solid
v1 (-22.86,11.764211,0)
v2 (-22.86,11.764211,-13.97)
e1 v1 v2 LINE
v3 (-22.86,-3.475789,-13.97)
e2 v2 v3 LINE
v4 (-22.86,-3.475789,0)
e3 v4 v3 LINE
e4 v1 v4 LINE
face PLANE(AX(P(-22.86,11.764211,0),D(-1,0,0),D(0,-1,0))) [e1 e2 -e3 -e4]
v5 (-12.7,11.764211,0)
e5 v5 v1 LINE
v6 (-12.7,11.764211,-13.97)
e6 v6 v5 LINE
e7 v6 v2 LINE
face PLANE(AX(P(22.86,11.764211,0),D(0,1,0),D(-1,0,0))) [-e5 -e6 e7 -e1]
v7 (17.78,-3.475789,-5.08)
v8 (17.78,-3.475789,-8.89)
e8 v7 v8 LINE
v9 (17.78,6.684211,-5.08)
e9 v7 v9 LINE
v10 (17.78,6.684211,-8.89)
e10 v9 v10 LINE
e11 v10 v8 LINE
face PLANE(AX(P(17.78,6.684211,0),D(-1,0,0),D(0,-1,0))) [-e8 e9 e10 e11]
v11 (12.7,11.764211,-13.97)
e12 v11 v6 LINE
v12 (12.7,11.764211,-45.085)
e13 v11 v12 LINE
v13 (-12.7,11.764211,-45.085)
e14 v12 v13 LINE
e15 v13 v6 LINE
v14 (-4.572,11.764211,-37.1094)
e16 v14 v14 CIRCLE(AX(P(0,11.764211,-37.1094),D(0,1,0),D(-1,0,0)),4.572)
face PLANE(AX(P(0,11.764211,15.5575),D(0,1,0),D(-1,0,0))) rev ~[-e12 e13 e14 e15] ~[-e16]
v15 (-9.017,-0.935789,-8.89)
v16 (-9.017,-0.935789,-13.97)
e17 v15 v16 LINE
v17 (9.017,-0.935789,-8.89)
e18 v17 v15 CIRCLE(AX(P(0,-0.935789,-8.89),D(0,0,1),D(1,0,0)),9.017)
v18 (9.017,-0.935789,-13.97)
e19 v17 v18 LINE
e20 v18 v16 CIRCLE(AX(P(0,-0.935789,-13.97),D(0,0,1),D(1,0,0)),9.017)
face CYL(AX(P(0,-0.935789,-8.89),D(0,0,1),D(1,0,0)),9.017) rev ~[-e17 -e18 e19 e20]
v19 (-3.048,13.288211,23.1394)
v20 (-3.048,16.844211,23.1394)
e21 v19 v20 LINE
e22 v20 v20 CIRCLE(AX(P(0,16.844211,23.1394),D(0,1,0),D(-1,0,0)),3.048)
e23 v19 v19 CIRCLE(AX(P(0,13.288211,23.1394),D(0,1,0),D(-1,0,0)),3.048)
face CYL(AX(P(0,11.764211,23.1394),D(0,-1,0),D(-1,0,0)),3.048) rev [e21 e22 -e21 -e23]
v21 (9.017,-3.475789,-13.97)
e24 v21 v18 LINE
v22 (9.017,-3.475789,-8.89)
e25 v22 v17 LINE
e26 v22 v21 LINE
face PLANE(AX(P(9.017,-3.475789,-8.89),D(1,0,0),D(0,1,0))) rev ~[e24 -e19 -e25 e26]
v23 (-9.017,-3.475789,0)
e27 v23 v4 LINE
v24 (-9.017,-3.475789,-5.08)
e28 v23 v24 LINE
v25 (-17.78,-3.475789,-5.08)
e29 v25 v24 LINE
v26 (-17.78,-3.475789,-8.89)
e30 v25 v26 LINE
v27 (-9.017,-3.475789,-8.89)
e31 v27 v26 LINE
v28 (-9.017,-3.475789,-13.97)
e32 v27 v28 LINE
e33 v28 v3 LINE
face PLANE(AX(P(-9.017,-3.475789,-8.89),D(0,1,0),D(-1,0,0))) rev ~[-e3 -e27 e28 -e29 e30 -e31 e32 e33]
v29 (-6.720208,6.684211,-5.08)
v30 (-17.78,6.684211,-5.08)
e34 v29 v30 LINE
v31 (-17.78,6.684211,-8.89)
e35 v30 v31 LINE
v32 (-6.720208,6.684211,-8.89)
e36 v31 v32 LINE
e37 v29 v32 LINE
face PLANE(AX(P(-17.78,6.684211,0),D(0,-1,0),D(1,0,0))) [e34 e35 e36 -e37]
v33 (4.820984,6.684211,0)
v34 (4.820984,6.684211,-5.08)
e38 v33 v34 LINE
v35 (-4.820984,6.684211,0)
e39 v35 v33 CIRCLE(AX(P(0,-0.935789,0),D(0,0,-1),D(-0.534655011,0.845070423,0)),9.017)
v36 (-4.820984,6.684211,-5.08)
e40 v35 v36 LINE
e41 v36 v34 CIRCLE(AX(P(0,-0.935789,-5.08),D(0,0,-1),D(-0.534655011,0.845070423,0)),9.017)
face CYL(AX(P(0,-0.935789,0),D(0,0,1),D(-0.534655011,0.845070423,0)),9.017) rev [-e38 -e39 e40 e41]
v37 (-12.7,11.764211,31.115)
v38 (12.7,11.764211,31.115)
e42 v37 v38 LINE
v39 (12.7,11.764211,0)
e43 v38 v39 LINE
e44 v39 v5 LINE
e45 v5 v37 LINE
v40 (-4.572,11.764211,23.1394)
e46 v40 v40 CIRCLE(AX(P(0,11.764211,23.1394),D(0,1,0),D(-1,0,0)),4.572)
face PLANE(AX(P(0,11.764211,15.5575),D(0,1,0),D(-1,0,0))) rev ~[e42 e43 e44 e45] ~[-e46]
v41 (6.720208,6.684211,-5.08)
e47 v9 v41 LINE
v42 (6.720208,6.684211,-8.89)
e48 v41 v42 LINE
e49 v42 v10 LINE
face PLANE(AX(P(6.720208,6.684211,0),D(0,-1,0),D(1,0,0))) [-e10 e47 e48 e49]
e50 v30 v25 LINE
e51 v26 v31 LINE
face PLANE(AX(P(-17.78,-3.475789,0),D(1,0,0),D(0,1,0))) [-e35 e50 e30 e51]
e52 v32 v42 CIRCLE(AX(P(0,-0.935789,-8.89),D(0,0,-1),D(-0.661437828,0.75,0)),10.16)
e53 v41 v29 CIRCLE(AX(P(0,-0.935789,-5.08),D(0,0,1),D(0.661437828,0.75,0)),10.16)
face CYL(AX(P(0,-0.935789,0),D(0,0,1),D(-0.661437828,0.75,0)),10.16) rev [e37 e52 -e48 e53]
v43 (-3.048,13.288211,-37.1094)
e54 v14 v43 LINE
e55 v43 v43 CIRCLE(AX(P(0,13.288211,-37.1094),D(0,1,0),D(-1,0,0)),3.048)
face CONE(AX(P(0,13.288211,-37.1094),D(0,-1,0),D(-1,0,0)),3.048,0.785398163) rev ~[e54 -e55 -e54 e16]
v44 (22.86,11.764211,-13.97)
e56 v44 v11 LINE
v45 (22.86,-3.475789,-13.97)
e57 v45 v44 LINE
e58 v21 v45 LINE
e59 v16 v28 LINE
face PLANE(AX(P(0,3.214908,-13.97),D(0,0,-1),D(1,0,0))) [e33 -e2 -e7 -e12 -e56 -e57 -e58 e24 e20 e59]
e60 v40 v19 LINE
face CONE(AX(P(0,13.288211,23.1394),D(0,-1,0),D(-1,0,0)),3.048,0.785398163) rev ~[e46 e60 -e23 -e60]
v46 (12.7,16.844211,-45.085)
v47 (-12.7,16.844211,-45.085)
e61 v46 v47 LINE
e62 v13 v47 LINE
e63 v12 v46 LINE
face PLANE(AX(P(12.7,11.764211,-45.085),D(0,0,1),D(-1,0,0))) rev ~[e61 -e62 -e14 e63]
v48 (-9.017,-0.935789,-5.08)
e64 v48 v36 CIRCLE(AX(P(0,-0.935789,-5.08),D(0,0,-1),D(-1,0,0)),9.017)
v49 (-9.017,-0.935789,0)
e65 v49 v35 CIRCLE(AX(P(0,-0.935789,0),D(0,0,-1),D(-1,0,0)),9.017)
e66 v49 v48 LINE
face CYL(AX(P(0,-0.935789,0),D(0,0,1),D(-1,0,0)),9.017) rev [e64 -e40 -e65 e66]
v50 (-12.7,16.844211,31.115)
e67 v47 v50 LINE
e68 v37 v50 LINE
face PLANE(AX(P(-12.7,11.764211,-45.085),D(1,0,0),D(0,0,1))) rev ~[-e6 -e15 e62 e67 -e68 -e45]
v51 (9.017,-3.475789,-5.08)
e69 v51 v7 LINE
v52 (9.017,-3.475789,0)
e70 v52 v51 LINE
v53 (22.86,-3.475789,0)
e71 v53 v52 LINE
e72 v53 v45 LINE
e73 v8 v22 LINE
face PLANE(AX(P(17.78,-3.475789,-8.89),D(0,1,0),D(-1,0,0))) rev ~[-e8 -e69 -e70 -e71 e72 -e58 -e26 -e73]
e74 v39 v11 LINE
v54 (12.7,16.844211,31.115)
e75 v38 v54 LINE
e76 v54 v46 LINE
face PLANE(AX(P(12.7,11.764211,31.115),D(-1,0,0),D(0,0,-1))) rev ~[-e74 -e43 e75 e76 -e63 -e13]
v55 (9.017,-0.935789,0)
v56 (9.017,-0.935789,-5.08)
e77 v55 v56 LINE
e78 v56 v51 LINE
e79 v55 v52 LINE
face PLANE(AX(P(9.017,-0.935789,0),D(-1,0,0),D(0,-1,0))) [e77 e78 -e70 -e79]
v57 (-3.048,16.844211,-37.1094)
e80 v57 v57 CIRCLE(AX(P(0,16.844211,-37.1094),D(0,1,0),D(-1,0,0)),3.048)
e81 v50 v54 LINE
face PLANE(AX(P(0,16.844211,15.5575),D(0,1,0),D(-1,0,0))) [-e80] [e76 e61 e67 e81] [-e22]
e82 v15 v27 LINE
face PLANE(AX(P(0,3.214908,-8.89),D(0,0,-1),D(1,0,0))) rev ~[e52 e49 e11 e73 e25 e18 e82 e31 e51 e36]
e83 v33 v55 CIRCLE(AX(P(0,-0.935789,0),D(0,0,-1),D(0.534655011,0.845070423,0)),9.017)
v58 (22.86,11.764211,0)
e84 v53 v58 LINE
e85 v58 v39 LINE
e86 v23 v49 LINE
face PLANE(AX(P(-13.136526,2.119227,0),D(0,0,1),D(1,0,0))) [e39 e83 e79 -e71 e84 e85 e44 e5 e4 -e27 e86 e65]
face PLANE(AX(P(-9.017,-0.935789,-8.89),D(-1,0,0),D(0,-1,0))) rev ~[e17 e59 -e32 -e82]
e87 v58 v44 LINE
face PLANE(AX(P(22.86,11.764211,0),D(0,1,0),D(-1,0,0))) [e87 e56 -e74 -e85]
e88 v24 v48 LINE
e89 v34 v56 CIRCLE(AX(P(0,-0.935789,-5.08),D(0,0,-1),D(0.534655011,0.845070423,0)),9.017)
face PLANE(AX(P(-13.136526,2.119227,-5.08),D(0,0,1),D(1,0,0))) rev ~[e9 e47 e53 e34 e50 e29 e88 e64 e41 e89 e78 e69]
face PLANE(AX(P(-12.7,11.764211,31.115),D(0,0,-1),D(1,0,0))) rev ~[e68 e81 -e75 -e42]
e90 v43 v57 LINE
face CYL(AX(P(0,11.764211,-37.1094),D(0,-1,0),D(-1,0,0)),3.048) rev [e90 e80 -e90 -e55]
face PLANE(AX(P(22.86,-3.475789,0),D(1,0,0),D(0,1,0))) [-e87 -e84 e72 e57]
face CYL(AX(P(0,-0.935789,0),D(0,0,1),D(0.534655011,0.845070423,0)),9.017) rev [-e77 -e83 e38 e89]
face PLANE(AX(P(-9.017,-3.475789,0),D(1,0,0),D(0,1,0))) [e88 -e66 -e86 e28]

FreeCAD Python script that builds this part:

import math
import FreeCAD as App
import Part
import Sketcher
Q = App.Units.Quantity


def edges_at(feature, points):
    """Names of the edges that pass closest to the given points."""
    edges = feature.Shape.Edges
    near = lambda p: min(range(len(edges)), key=lambda i: edges[i].distToShape(Part.Vertex(*p))[0])
    return sorted({f"Edge{near(p) + 1}" for p in points})

doc = App.newDocument("Part")
params = doc.addObject("Spreadsheet::Sheet", "Params")
for row, (alias, value) in enumerate([
    ("sketch1_radius", "0.4 in"),
    ("sketch1_height", "0.4 in"),
    ("sketch1_height2", "0.1 in"),
    ("sketch1_radius2", "0.355 in"),
    ("pad1_length", "0.2 in"),
    ("sketch2_radius", "0.4 in"),
    ("sketch2_width", "0.2 in"),
    ("sketch2_width2", "1.8 in"),
    ("sketch2_height", "0.4 in"),
    ("sketch2_height2", "0.6 in"),
    ("pad2_length", "0.55 in"),
    ("sketch3_radius", "0.4 in"),
    ("sketch3_height", "0.4 in"),
    ("sketch3_height2", "0.1 in"),
    ("sketch3_radius2", "0.355 in"),
    ("pad3_length", "0.2 in"),
    ("sketch4_diameter", "0.24 in"),
    ("sketch4_width", "1 in"),
    ("sketch4_height", "3 in"),
    ("pad4_length", "0.2 in"),
    ("chamfer_size", "0.06 in"),
], start=1):
    params.set(f"A{row}", alias)
    params.set(f"B{row}", "=" + value)
    params.setAlias(f"B{row}", alias)

body = doc.addObject("PartDesign::Body", "Body")

# Sketch on XY plane
sketch1 = body.newObject("Sketcher::SketchObject", "Sketch")
sketch1.AttachmentSupport = (doc.getObject("XY_Plane"), [""])
sketch1.MapMode = "FlatFace"
sketch1.addGeometry([
    Part.LineSegment(App.Vector(-17.78, 6.684211, 0), App.Vector(-17.78, -3.475789, 0)),  # 0
    Part.LineSegment(App.Vector(-17.78, -3.475789, 0), App.Vector(-9.017, -3.475789, 0)),  # 1
    Part.LineSegment(App.Vector(-9.017, -3.475789, 0), App.Vector(-9.017, -0.935789, 0)),  # 2
    Part.ArcOfCircle(Part.Circle(App.Vector(0, -0.935789, 0), App.Vector(0, 0, 1), 9.017), math.radians(122.320518), math.radians(180)),  # 3
    Part.ArcOfCircle(Part.Circle(App.Vector(0, -0.935789, 0), App.Vector(0, 0, 1), 9.017), math.radians(57.679482), math.radians(122.320518)),  # 4
    Part.ArcOfCircle(Part.Circle(App.Vector(0, -0.935789, 0), App.Vector(0, 0, 1), 9.017), math.radians(0), math.radians(57.679482)),  # 5
    Part.LineSegment(App.Vector(9.017, -0.935789, 0), App.Vector(9.017, -3.475789, 0)),  # 6
    Part.LineSegment(App.Vector(9.017, -3.475789, 0), App.Vector(17.78, -3.475789, 0)),  # 7
    Part.LineSegment(App.Vector(17.78, -3.475789, 0), App.Vector(17.78, 6.684211, 0)),  # 8
    Part.LineSegment(App.Vector(17.78, 6.684211, 0), App.Vector(6.720208, 6.684211, 0)),  # 9
    Part.ArcOfCircle(Part.Circle(App.Vector(0, -0.935789, 0), App.Vector(0, 0, 1), 10.16), math.radians(48.590378), math.radians(131.409622)),  # 10
    Part.LineSegment(App.Vector(-6.720208, 6.684211, 0), App.Vector(-17.78, 6.684211, 0)),  # 11
], False)
sketch1.addConstraint([
    Sketcher.Constraint("Coincident", 0, 2, 1, 1),
    Sketcher.Constraint("Coincident", 1, 2, 2, 1),
    Sketcher.Constraint("Tangent", 2, 2, 3, 2),
    Sketcher.Constraint("Tangent", 3, 1, 4, 2),
    Sketcher.Constraint("Tangent", 4, 1, 5, 2),
    Sketcher.Constraint("Tangent", 5, 1, 6, 1),
    Sketcher.Constraint("Coincident", 6, 2, 7, 1),
    Sketcher.Constraint("Coincident", 7, 2, 8, 1),
    Sketcher.Constraint("Coincident", 8, 2, 9, 1),
    Sketcher.Constraint("Coincident", 9, 2, 10, 1),
    Sketcher.Constraint("Coincident", 10, 2, 11, 1),
    Sketcher.Constraint("Coincident", 11, 2, 0, 1),
    Sketcher.Constraint("Vertical", 0),
    Sketcher.Constraint("Horizontal", 1),
    Sketcher.Constraint("Vertical", 2),
    Sketcher.Constraint("Vertical", 6),
    Sketcher.Constraint("Horizontal", 7),
    Sketcher.Constraint("Vertical", 8),
    Sketcher.Constraint("Horizontal", 9),
    Sketcher.Constraint("Horizontal", 11),
    Sketcher.Constraint("Coincident", 5, 3, 3, 3),
    Sketcher.Constraint("Coincident", 10, 3, 3, 3),
    Sketcher.Constraint("Symmetric", 3, 1, 4, 1, -2),
    Sketcher.Constraint("Symmetric", 0, 2, 7, 2, -2),
    Sketcher.Constraint("Horizontal", 4, 1, 8, 2),
    Sketcher.Constraint("Horizontal", 9, 2, 10, 2),
    Sketcher.Constraint("Radius", 10, Q("0.4 in")),
    Sketcher.Constraint("DistanceY", 0, 2, 0, 1, Q("0.4 in")),
    Sketcher.Constraint("DistanceY", 2, 1, 2, 2, Q("0.1 in")),
    Sketcher.Constraint("Radius", 3, Q("0.355 in")),
    Sketcher.Constraint("DistanceX", 0, 2, -1, 1, Q("0.7 in")),
    Sketcher.Constraint("DistanceY", 3, 3, -1, 1, Q("0.935789 mm")),
])
sketch1.setExpression("Constraints[26]", "Params.sketch1_radius")
sketch1.setExpression("Constraints[27]", "Params.sketch1_height")
sketch1.setExpression("Constraints[28]", "Params.sketch1_height2")
sketch1.setExpression("Constraints[29]", "Params.sketch1_radius2")
pad1 = body.newObject("PartDesign::Pad", "Pad")
pad1.Profile = sketch1
pad1.setExpression("Length", "Params.pad1_length")
pad1.Reversed = True

# Sketch on XY plane
sketch2 = body.newObject("Sketcher::SketchObject", "Sketch001")
sketch2.AttachmentSupport = (doc.getObject("XY_Plane"), [""])
sketch2.MapMode = "FlatFace"
sketch2.addGeometry([
    Part.ArcOfCircle(Part.Circle(App.Vector(0, -0.935789, 0), App.Vector(0, 0, 1), 10.16), math.radians(48.590378), math.radians(131.409622)),  # 0
    Part.LineSegment(App.Vector(6.720208, 6.684211, 0), App.Vector(17.78, 6.684211, 0)),  # 1
    Part.LineSegment(App.Vector(17.78, 6.684211, 0), App.Vector(17.78, -3.475789, 0)),  # 2
    Part.LineSegment(App.Vector(17.78, -3.475789, 0), App.Vector(22.86, -3.475789, 0)),  # 3
    Part.LineSegment(App.Vector(22.86, -3.475789, 0), App.Vector(22.86, 11.764211, 0)),  # 4
    Part.LineSegment(App.Vector(22.86, 11.764211, 0), App.Vector(-22.86, 11.764211, 0)),  # 5
    Part.LineSegment(App.Vector(-22.86, 11.764211, 0), App.Vector(-22.86, -3.475789, 0)),  # 6
    Part.LineSegment(App.Vector(-22.86, -3.475789, 0), App.Vector(-17.78, -3.475789, 0)),  # 7
    Part.LineSegment(App.Vector(-17.78, -3.475789, 0), App.Vector(-17.78, 6.684211, 0)),  # 8
    Part.LineSegment(App.Vector(-17.78, 6.684211, 0), App.Vector(-6.720208, 6.684211, 0)),  # 9
], False)
sketch2.addConstraint([
    Sketcher.Constraint("Coincident", 0, 1, 1, 1),
    Sketcher.Constraint("Coincident", 1, 2, 2, 1),
    Sketcher.Constraint("Coincident", 2, 2, 3, 1),
    Sketcher.Constraint("Coincident", 3, 2, 4, 1),
    Sketcher.Constraint("Coincident", 4, 2, 5, 1),
    Sketcher.Constraint("Coincident", 5, 2, 6, 1),
    Sketcher.Constraint("Coincident", 6, 2, 7, 1),
    Sketcher.Constraint("Coincident", 7, 2, 8, 1),
    Sketcher.Constraint("Coincident", 8, 2, 9, 1),
    Sketcher.Constraint("Coincident", 9, 2, 0, 2),
    Sketcher.Constraint("Horizontal", 1),
    Sketcher.Constraint("Vertical", 2),
    Sketcher.Constraint("Horizontal", 3),
    Sketcher.Constraint("Vertical", 4),
    Sketcher.Constraint("Horizontal", 5),
    Sketcher.Constraint("Vertical", 6),
    Sketcher.Constraint("Horizontal", 7),
    Sketcher.Constraint("Vertical", 8),
    Sketcher.Constraint("Horizontal", 9),
    Sketcher.Constraint("Symmetric", 3, 2, 6, 2, -2),
    Sketcher.Constraint("Symmetric", 1, 2, 8, 2, -2),
    Sketcher.Constraint("PointOnObject", 0, 3, -2),
    Sketcher.Constraint("Radius", 0, Q("0.4 in")),
    Sketcher.Constraint("DistanceX", 3, 1, 3, 2, Q("0.2 in")),
    Sketcher.Constraint("DistanceX", 5, 2, 5, 1, Q("1.8 in")),
    Sketcher.Constraint("DistanceY", 2, 2, 2, 1, Q("0.4 in")),
    Sketcher.Constraint("DistanceY", 4, 1, 4, 2, Q("0.6 in")),
    Sketcher.Constraint("DistanceY", 0, 3, 0, 1, Q("0.3 in")),
    Sketcher.Constraint("DistanceY", 0, 3, -1, 1, Q("0.935789 mm")),
])
sketch2.setExpression("Constraints[22]", "Params.sketch2_radius")
sketch2.setExpression("Constraints[23]", "Params.sketch2_width")
sketch2.setExpression("Constraints[24]", "Params.sketch2_width2")
sketch2.setExpression("Constraints[25]", "Params.sketch2_height")
sketch2.setExpression("Constraints[26]", "Params.sketch2_height2")
pad2 = body.newObject("PartDesign::Pad", "Pad001")
pad2.Profile = sketch2
pad2.setExpression("Length", "Params.pad2_length")
pad2.Reversed = True

# Sketch on XY plane
sketch3 = body.newObject("Sketcher::SketchObject", "Sketch002")
sketch3.AttachmentSupport = (doc.getObject("XY_Plane"), [""])
sketch3.MapMode = "FlatFace"
sketch3.AttachmentOffset = App.Placement(App.Vector(0, 0, -0.35 * 25.4), App.Rotation())
sketch3.addGeometry([
    Part.LineSegment(App.Vector(-17.78, -3.475789, 0), App.Vector(-17.78, 6.684211, 0)),  # 0
    Part.LineSegment(App.Vector(-17.78, 6.684211, 0), App.Vector(-6.720208, 6.684211, 0)),  # 1
    Part.ArcOfCircle(Part.Circle(App.Vector(0, -0.935789, 0), App.Vector(0, 0, 1), 10.16), math.radians(48.590378), math.radians(131.409622)),  # 2
    Part.LineSegment(App.Vector(6.720208, 6.684211, 0), App.Vector(17.78, 6.684211, 0)),  # 3
    Part.LineSegment(App.Vector(17.78, 6.684211, 0), App.Vector(17.78, -3.475789, 0)),  # 4
    Part.LineSegment(App.Vector(17.78, -3.475789, 0), App.Vector(9.017, -3.475789, 0)),  # 5
    Part.LineSegment(App.Vector(9.017, -3.475789, 0), App.Vector(9.017, -0.935789, 0)),  # 6
    Part.ArcOfCircle(Part.Circle(App.Vector(0, -0.935789, 0), App.Vector(0, 0, 1), 9.017), math.radians(0), math.radians(180)),  # 7
    Part.LineSegment(App.Vector(-9.017, -0.935789, 0), App.Vector(-9.017, -3.475789, 0)),  # 8
    Part.LineSegment(App.Vector(-9.017, -3.475789, 0), App.Vector(-17.78, -3.475789, 0)),  # 9
], False)
sketch3.addConstraint([
    Sketcher.Constraint("Coincident", 0, 2, 1, 1),
    Sketcher.Constraint("Coincident", 1, 2, 2, 2),
    Sketcher.Constraint("Coincident", 2, 1, 3, 1),
    Sketcher.Constraint("Coincident", 3, 2, 4, 1),
    Sketcher.Constraint("Coincident", 4, 2, 5, 1),
    Sketcher.Constraint("Coincident", 5, 2, 6, 1),
    Sketcher.Constraint("Tangent", 6, 2, 7, 1),
    Sketcher.Constraint("Tangent", 7, 2, 8, 1),
    Sketcher.Constraint("Coincident", 8, 2, 9, 1),
    Sketcher.Constraint("Coincident", 9, 2, 0, 1),
    Sketcher.Constraint("Vertical", 0),
    Sketcher.Constraint("Horizontal", 1),
    Sketcher.Constraint("Horizontal", 3),
    Sketcher.Constraint("Vertical", 4),
    Sketcher.Constraint("Horizontal", 5),
    Sketcher.Constraint("Vertical", 6),
    Sketcher.Constraint("Vertical", 8),
    Sketcher.Constraint("Horizontal", 9),
    Sketcher.Constraint("Coincident", 7, 3, 2, 3),
    Sketcher.Constraint("Symmetric", 1, 2, 2, 1, -2),
    Sketcher.Constraint("Symmetric", 4, 2, 9, 2, -2),
    Sketcher.Constraint("Radius", 2, Q("0.4 in")),
    Sketcher.Constraint("DistanceY", 0, 1, 0, 2, Q("0.4 in")),
    Sketcher.Constraint("DistanceY", 6, 1, 6, 2, Q("0.1 in")),
    Sketcher.Constraint("Radius", 7, Q("0.355 in")),
    Sketcher.Constraint("DistanceX", 0, 2, -1, 1, Q("0.7 in")),
    Sketcher.Constraint("DistanceY", 2, 3, -1, 1, Q("0.935789 mm")),
])
sketch3.setExpression("Constraints[21]", "Params.sketch3_radius")
sketch3.setExpression("Constraints[22]", "Params.sketch3_height")
sketch3.setExpression("Constraints[23]", "Params.sketch3_height2")
sketch3.setExpression("Constraints[24]", "Params.sketch3_radius2")
pad3 = body.newObject("PartDesign::Pad", "Pad002")
pad3.Profile = sketch3
pad3.setExpression("Length", "Params.pad3_length")
pad3.Reversed = True

# Sketch on XZ plane
sketch4 = body.newObject("Sketcher::SketchObject", "Sketch003")
sketch4.AttachmentSupport = (doc.getObject("XZ_Plane"), [""])
sketch4.MapMode = "FlatFace"
sketch4.AttachmentOffset = App.Placement(App.Vector(0, 0, -11.764211), App.Rotation())
sketch4.addGeometry([
    Part.LineSegment(App.Vector(-12.7, 31.115, 0), App.Vector(12.7, 31.115, 0)),  # 0
    Part.LineSegment(App.Vector(12.7, 31.115, 0), App.Vector(12.7, -45.085, 0)),  # 1
    Part.LineSegment(App.Vector(12.7, -45.085, 0), App.Vector(-12.7, -45.085, 0)),  # 2
    Part.LineSegment(App.Vector(-12.7, -45.085, 0), App.Vector(-12.7, 31.115, 0)),  # 3
    Part.Circle(App.Vector(0, 23.1394, 0), App.Vector(0, 0, 1), 3.048),  # 4
    Part.Circle(App.Vector(0, -37.1094, 0), App.Vector(0, 0, 1), 3.048),  # 5
], False)
sketch4.addConstraint([
    Sketcher.Constraint("Coincident", 0, 2, 1, 1),
    Sketcher.Constraint("Coincident", 1, 2, 2, 1),
    Sketcher.Constraint("Coincident", 2, 2, 3, 1),
    Sketcher.Constraint("Coincident", 3, 2, 0, 1),
    Sketcher.Constraint("Horizontal", 0),
    Sketcher.Constraint("Vertical", 1),
    Sketcher.Constraint("Horizontal", 2),
    Sketcher.Constraint("Vertical", 3),
    Sketcher.Constraint("Equal", 4, 5),
    Sketcher.Constraint("PointOnObject", 4, 3, -2),
    Sketcher.Constraint("PointOnObject", 5, 3, -2),
    Sketcher.Constraint("Diameter", 4, Q("0.24 in")),
    Sketcher.Constraint("DistanceX", 0, 1, 0, 2, Q("1 in")),
    Sketcher.Constraint("DistanceY", 1, 2, 1, 1, Q("3 in")),
    Sketcher.Constraint("DistanceX", -1, 1, 0, 2, Q("0.5 in")),
    Sketcher.Constraint("DistanceY", -1, 1, 4, 3, Q("0.911 in")),
    Sketcher.Constraint("DistanceY", 5, 3, -1, 1, Q("1.461 in")),
    Sketcher.Constraint("DistanceY", -1, 1, 0, 2, Q("1.225 in")),
])
sketch4.setExpression("Constraints[11]", "Params.sketch4_diameter")
sketch4.setExpression("Constraints[12]", "Params.sketch4_width")
sketch4.setExpression("Constraints[13]", "Params.sketch4_height")
pad4 = body.newObject("PartDesign::Pad", "Pad003")
pad4.Profile = sketch4
pad4.setExpression("Length", "Params.pad4_length")
pad4.Reversed = True
doc.recompute()

chamfer = body.newObject("PartDesign::Chamfer", "Chamfer")
chamfer.Base = (pad4, edges_at(pad4, [(3.048, 11.764, 23.139), (3.048, 11.764, -37.109)]))
chamfer.setExpression("Size", "Params.chamfer_size")

doc.recompute()
